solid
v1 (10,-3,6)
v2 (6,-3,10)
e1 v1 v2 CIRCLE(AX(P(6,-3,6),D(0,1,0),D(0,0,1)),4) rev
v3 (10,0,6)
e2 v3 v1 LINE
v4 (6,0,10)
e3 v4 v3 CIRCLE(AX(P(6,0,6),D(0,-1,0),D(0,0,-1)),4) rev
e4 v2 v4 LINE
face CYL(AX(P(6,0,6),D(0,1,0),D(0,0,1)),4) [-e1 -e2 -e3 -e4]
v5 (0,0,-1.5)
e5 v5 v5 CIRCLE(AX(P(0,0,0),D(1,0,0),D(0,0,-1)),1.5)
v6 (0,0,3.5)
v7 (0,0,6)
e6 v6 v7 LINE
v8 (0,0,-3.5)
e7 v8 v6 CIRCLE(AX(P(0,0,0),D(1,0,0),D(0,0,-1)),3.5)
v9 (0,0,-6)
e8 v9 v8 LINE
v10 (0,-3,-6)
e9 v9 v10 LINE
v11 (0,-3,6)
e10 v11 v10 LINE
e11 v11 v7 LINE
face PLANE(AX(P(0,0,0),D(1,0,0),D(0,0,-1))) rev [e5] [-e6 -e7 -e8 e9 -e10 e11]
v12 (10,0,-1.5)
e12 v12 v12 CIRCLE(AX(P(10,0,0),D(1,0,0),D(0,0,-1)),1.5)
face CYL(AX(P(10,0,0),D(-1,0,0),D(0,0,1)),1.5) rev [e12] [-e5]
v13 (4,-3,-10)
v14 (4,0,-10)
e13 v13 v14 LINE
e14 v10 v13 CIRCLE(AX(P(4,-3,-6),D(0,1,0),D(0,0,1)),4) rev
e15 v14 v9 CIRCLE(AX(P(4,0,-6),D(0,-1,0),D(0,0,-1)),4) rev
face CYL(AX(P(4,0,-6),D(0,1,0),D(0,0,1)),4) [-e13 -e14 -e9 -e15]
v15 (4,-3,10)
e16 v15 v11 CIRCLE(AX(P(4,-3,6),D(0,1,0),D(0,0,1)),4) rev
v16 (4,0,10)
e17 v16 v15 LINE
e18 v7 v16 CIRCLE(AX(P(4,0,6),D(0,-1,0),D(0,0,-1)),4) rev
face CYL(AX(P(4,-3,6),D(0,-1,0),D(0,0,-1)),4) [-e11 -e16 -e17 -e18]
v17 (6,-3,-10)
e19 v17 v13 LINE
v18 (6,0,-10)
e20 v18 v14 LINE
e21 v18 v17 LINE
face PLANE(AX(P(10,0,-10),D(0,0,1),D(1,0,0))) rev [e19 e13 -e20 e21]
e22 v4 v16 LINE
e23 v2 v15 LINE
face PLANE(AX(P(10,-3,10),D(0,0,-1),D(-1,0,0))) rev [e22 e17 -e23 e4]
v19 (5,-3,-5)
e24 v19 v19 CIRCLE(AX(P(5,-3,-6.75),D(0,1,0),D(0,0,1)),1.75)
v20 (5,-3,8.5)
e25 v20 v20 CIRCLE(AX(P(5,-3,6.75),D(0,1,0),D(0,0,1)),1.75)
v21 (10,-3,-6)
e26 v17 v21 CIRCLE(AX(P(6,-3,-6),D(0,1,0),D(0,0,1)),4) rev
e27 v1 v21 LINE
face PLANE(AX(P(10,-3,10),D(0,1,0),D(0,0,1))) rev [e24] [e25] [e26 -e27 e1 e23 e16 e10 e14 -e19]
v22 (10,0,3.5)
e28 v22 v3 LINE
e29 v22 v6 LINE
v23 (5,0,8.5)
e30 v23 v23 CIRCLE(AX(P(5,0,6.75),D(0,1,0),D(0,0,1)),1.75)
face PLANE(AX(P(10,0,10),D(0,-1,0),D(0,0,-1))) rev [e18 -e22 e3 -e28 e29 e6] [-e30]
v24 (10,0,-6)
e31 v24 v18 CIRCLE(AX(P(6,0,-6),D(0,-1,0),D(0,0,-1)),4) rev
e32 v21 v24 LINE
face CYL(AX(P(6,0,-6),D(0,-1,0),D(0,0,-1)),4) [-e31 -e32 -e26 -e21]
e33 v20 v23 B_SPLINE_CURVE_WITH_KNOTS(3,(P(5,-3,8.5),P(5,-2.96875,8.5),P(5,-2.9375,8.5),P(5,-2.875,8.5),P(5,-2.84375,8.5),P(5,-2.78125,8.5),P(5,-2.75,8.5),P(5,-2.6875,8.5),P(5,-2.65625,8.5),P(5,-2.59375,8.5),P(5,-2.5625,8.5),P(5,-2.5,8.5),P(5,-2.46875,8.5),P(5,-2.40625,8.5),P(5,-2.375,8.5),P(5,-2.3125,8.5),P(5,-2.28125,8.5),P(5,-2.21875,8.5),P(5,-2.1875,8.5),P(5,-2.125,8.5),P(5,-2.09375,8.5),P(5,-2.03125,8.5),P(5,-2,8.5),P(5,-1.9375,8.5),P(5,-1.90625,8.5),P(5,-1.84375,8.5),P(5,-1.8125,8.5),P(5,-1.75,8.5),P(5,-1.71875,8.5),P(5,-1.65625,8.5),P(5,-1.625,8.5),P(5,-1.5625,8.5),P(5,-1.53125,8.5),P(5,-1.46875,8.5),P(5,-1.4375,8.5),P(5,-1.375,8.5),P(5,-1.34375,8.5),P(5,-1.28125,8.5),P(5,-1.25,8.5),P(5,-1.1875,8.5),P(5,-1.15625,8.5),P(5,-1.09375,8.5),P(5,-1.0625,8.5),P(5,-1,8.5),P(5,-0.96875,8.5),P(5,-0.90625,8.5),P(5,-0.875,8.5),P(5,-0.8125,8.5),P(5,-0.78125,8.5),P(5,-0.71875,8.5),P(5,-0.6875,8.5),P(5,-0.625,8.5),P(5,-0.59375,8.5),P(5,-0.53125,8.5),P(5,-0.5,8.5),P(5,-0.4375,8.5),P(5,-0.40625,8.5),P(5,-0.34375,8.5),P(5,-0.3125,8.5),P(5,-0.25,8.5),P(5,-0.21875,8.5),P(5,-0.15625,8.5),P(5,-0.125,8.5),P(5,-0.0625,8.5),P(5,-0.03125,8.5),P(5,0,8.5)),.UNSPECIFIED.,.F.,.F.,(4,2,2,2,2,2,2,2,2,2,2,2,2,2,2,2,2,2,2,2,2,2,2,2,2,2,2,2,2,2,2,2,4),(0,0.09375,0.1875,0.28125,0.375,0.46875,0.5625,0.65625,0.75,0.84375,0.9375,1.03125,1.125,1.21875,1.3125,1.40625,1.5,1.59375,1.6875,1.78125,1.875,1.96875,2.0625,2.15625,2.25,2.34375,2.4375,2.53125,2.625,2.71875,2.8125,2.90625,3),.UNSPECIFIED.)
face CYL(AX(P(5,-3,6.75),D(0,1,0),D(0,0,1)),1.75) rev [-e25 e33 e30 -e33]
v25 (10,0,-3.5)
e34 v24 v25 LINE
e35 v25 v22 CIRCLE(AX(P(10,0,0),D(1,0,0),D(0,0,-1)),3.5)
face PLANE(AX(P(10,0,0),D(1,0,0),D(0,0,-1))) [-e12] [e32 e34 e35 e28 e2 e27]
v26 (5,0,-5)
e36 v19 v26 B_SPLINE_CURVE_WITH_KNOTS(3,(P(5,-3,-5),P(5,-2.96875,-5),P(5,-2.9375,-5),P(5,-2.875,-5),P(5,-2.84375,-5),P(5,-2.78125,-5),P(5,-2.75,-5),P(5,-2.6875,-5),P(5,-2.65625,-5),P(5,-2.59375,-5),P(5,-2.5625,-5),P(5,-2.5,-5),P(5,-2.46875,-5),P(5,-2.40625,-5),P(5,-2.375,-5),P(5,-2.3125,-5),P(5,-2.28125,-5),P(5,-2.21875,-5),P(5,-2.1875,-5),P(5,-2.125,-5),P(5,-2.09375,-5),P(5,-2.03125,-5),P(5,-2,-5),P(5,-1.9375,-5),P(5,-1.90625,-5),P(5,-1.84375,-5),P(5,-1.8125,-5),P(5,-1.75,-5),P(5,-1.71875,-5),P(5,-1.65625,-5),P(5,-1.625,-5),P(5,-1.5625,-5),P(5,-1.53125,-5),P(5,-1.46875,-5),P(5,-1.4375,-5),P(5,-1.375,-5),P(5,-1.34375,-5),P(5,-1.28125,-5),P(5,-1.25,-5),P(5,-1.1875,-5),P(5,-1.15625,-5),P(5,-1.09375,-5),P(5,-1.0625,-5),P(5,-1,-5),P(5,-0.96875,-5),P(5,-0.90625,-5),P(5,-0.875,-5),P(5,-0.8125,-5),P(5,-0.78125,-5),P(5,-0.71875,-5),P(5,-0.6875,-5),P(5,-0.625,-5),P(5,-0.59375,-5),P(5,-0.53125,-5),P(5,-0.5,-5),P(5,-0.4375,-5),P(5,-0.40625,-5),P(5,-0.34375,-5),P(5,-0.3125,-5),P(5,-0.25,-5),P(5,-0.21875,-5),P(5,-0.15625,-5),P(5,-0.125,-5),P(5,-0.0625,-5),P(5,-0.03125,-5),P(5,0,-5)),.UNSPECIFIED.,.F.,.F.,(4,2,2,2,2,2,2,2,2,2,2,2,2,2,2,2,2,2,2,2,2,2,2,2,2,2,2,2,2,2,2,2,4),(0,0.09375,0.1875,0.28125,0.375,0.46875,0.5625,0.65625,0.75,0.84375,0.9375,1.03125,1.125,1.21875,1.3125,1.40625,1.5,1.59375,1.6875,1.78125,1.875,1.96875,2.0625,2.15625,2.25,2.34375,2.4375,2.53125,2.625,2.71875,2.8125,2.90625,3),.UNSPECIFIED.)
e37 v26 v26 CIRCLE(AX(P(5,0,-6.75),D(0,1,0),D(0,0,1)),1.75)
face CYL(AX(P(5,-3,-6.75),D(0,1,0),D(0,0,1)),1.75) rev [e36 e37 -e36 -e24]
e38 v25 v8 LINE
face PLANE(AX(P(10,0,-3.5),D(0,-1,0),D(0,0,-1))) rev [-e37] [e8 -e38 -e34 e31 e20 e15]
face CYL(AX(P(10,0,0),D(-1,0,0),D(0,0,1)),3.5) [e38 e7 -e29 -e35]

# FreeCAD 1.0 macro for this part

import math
import FreeCAD as App
import Part
import Sketcher

V = App.Vector
Q = App.Units.Quantity


def edges_at(feature, points):
    """Names of the edges that pass closest to the given points."""
    edges = feature.Shape.Edges
    near = lambda p: min(range(len(edges)), key=lambda i: edges[i].distToShape(Part.Vertex(*p))[0])
    return sorted({f"Edge{near(p) + 1}" for p in points})

doc = App.newDocument("Part")
body = doc.addObject("PartDesign::Body", "Body")

# Sketch on YZ plane
sketch1 = doc.addObject("Sketcher::SketchObject", "Sketch")
body.addObject(sketch1)
sketch1.AttachmentSupport = (doc.YZ_Plane, [""])
sketch1.MapMode = "FlatFace"
sketch1.addGeometry([
    Part.LineSegment(V(-3, 10, 0), V(-3, -10, 0)),  # 0
    Part.LineSegment(V(-3, -10, 0), V(0, -10, 0)),  # 1
    Part.LineSegment(V(0, -10, 0), V(0, -3.5, 0)),  # 2
    Part.ArcOfCircle(Part.Circle(V(0, 0, 0), V(0, 0, 1), 3.5), math.radians(-90), math.radians(90)),  # 3
    Part.LineSegment(V(0, 3.5, 0), V(0, 10, 0)),  # 4
    Part.LineSegment(V(0, 10, 0), V(-3, 10, 0)),  # 5
    Part.Circle(V(0, 0, 0), V(0, 0, 1), 1.5),  # 6
], False)
sketch1.addConstraint([
    Sketcher.Constraint("Coincident", 0, 2, 1, 1),
    Sketcher.Constraint("Coincident", 1, 2, 2, 1),
    Sketcher.Constraint("Coincident", 2, 2, 3, 1),
    Sketcher.Constraint("Coincident", 3, 2, 4, 1),
    Sketcher.Constraint("Coincident", 4, 2, 5, 1),
    Sketcher.Constraint("Coincident", 5, 2, 0, 1),
    Sketcher.Constraint("Vertical", 0),
    Sketcher.Constraint("Horizontal", 1),
    Sketcher.Constraint("Vertical", 2),
    Sketcher.Constraint("Vertical", 4),
    Sketcher.Constraint("Horizontal", 5),
    Sketcher.Constraint("Coincident", 3, 3, -1, 1),
    Sketcher.Constraint("Coincident", 6, 3, -1, 1),
    Sketcher.Constraint("Symmetric", 1, 2, 4, 2, -1, 1),
    Sketcher.Constraint("PointOnObject", 1, 2, -2),
    Sketcher.Constraint("Diameter", 6, Q("3 mm")),
    Sketcher.Constraint("Radius", 3, Q("3.5 mm")),
    Sketcher.Constraint("DistanceX", 1, 1, 1, 2, Q("3 mm")),
    Sketcher.Constraint("DistanceY", 0, 2, 0, 1, Q("20 mm")),
])
pad1 = doc.addObject("PartDesign::Pad", "Pad")
body.addObject(pad1)
pad1.Profile = sketch1
pad1.Length = 10

# Sketch on XZ plane
sketch2 = doc.addObject("Sketcher::SketchObject", "Sketch001")
body.addObject(sketch2)
sketch2.AttachmentSupport = (doc.XZ_Plane, [""])
sketch2.MapMode = "FlatFace"
sketch2.addGeometry([
    Part.Circle(V(5, -6.75, 0), V(0, 0, 1), 1.75),
    Part.Circle(V(5, 6.75, 0), V(0, 0, 1), 1.75),
], False)
sketch2.addConstraint([
    Sketcher.Constraint("Equal", 0, 1),
    Sketcher.Constraint("Symmetric", 0, 3, 1, 3, -1),
    Sketcher.Constraint("Diameter", 0, Q("3.5 mm")),
    Sketcher.Constraint("DistanceX", -1, 1, 0, 3, Q("5 mm")),
    Sketcher.Constraint("DistanceY", 0, 3, 1, 3, Q("13.5 mm")),
])
pocket1 = doc.addObject("PartDesign::Pocket", "Pocket")
body.addObject(pocket1)
pocket1.Profile = sketch2
pocket1.Type = "ThroughAll"
pocket1.Reversed = True
doc.recompute()

fillet = doc.addObject("PartDesign::Fillet", "Fillet")
body.addObject(fillet)
fillet.Base = (pocket1, edges_at(pocket1, [
    (10, -1.5, -10),
    (10, -1.5, 10),
    (0, -1.5, -10),
    (0, -1.5, 10),
]))
fillet.Radius = 4

doc.recompute()
